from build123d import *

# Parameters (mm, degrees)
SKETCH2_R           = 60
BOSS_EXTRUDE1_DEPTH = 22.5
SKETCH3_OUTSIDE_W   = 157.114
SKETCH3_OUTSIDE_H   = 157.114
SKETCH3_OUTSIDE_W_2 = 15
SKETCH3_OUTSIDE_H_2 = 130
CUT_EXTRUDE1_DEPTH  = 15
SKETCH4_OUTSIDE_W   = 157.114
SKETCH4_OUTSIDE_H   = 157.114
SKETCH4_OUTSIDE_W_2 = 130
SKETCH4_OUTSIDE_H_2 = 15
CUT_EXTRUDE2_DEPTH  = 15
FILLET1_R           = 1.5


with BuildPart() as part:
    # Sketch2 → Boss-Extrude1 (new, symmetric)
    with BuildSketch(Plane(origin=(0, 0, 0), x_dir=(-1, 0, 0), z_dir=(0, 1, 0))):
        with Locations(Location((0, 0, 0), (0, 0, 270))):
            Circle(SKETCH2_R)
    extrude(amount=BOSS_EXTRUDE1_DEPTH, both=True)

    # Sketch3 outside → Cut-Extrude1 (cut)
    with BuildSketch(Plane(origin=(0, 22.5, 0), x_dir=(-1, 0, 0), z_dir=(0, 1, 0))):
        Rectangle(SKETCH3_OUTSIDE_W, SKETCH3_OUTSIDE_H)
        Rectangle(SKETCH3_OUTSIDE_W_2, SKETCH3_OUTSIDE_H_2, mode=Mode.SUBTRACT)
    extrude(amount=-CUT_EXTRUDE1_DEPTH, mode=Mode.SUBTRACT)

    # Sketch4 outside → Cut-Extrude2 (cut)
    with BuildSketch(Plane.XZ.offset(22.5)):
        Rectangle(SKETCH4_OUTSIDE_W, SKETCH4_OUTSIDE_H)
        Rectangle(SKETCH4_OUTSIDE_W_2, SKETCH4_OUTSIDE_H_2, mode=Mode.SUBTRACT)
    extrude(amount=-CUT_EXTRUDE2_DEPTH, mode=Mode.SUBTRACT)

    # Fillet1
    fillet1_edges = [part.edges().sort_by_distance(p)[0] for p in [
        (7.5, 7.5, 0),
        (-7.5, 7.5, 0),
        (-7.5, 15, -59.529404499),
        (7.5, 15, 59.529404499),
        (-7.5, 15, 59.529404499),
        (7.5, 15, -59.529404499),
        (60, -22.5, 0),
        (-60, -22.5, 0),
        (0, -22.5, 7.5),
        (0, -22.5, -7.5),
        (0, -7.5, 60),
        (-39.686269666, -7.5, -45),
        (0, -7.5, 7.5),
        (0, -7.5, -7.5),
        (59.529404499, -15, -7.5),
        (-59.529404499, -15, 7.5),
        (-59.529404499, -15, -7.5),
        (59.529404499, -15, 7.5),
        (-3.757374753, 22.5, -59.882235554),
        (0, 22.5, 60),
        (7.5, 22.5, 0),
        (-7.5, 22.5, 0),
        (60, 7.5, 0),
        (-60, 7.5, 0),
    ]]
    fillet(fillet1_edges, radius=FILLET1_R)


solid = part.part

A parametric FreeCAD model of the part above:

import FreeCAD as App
import Part
import Sketcher
from FreeCAD import Vector

doc = App.newDocument("Part")
body = doc.addObject("PartDesign::Body", "Body")

sketch1 = body.newObject("Sketcher::SketchObject", "Sketch")
sketch1.AttachmentSupport = (doc.getObject("XZ_Plane"), [""])
sketch1.MapMode = "FlatFace"
sketch1.addGeometry(Part.Circle(Vector(0, 0, 0), Vector(0, 0, 1), 60), False)
sketch1.addConstraint([
    Sketcher.Constraint("Coincident", 0, 3, -1, 1),
    Sketcher.Constraint("Diameter", 0, 120.0),
])
pad1 = body.newObject("PartDesign::Pad", "Pad")
pad1.Profile = sketch1
pad1.Length = 45
pad1.Midplane = True

sketch2 = body.newObject("Sketcher::SketchObject", "Sketch001")
sketch2.AttachmentSupport = (doc.getObject("XZ_Plane"), [""])
sketch2.MapMode = "FlatFace"
sketch2.AttachmentOffset = App.Placement(Vector(0, 0, -22.5), App.Rotation())
sketch2.addGeometry([
    Part.LineSegment(Vector(79, 79, 0), Vector(79, -79, 0)),
    Part.LineSegment(Vector(79, -79, 0), Vector(-79, -79, 0)),
    Part.LineSegment(Vector(-79, -79, 0), Vector(-79, 79, 0)),
    Part.LineSegment(Vector(-79, 79, 0), Vector(79, 79, 0)),
    Part.LineSegment(Vector(-8, -65, 0), Vector(8, -65, 0)),
    Part.LineSegment(Vector(8, -65, 0), Vector(8, 65, 0)),
    Part.LineSegment(Vector(8, 65, 0), Vector(-8, 65, 0)),
    Part.LineSegment(Vector(-8, 65, 0), Vector(-8, -65, 0)),
], False)
sketch2.addConstraint([
    Sketcher.Constraint("Coincident", 0, 2, 1, 1),
    Sketcher.Constraint("Coincident", 1, 2, 2, 1),
    Sketcher.Constraint("Coincident", 2, 2, 3, 1),
    Sketcher.Constraint("Coincident", 3, 2, 0, 1),
    Sketcher.Constraint("Coincident", 4, 2, 5, 1),
    Sketcher.Constraint("Coincident", 5, 2, 6, 1),
    Sketcher.Constraint("Coincident", 6, 2, 7, 1),
    Sketcher.Constraint("Coincident", 7, 2, 4, 1),
    Sketcher.Constraint("Vertical", 0),
    Sketcher.Constraint("Horizontal", 1),
    Sketcher.Constraint("Vertical", 2),
    Sketcher.Constraint("Horizontal", 3),
    Sketcher.Constraint("Horizontal", 4),
    Sketcher.Constraint("Vertical", 5),
    Sketcher.Constraint("Horizontal", 6),
    Sketcher.Constraint("Vertical", 7),
    Sketcher.Constraint("Symmetric", 0, 2, 2, 2, -1, 1),
    Sketcher.Constraint("Symmetric", 4, 2, 6, 2, -1, 1),
    Sketcher.Constraint("Equal", 3, 0),
    Sketcher.Constraint("DistanceX", 4, 1, 4, 2, 15.0),
    Sketcher.Constraint("DistanceY", 5, 1, 5, 2, 130.0),
    Sketcher.Constraint("DistanceX", 1, 2, 1, 1, 157.114),
])
pocket1 = body.newObject("PartDesign::Pocket", "Pocket")
pocket1.Profile = sketch2
pocket1.Length = 15
pocket1.Reversed = True

sketch3 = body.newObject("Sketcher::SketchObject", "Sketch002")
sketch3.AttachmentSupport = (doc.getObject("XZ_Plane"), [""])
sketch3.MapMode = "FlatFace"
sketch3.AttachmentOffset = App.Placement(Vector(0, 0, 22.5), App.Rotation())
sketch3.addGeometry([
    Part.LineSegment(Vector(-79, 79, 0), Vector(-79, -79, 0)),
    Part.LineSegment(Vector(-79, -79, 0), Vector(79, -79, 0)),
    Part.LineSegment(Vector(79, -79, 0), Vector(79, 79, 0)),
    Part.LineSegment(Vector(79, 79, 0), Vector(-79, 79, 0)),
    Part.LineSegment(Vector(65, -8, 0), Vector(-65, -8, 0)),
    Part.LineSegment(Vector(-65, -8, 0), Vector(-65, 8, 0)),
    Part.LineSegment(Vector(-65, 8, 0), Vector(65, 8, 0)),
    Part.LineSegment(Vector(65, 8, 0), Vector(65, -8, 0)),
], False)
sketch3.addConstraint([
    Sketcher.Constraint("Coincident", 0, 2, 1, 1),
    Sketcher.Constraint("Coincident", 1, 2, 2, 1),
    Sketcher.Constraint("Coincident", 2, 2, 3, 1),
    Sketcher.Constraint("Coincident", 3, 2, 0, 1),
    Sketcher.Constraint("Coincident", 4, 2, 5, 1),
    Sketcher.Constraint("Coincident", 5, 2, 6, 1),
    Sketcher.Constraint("Coincident", 6, 2, 7, 1),
    Sketcher.Constraint("Coincident", 7, 2, 4, 1),
    Sketcher.Constraint("Vertical", 0),
    Sketcher.Constraint("Horizontal", 1),
    Sketcher.Constraint("Vertical", 2),
    Sketcher.Constraint("Horizontal", 3),
    Sketcher.Constraint("Horizontal", 4),
    Sketcher.Constraint("Vertical", 5),
    Sketcher.Constraint("Horizontal", 6),
    Sketcher.Constraint("Vertical", 7),
    Sketcher.Constraint("Symmetric", 0, 2, 2, 2, -1, 1),
    Sketcher.Constraint("Symmetric", 4, 2, 6, 2, -1, 1),
    Sketcher.Constraint("Equal", 3, 0),
    Sketcher.Constraint("DistanceX", 4, 2, 4, 1, 130.0),
    Sketcher.Constraint("DistanceY", 5, 1, 5, 2, 15.0),
    Sketcher.Constraint("DistanceX", 1, 1, 1, 2, 157.114),
])
pocket2 = body.newObject("PartDesign::Pocket", "Pocket001")
pocket2.Profile = sketch3
pocket2.Length = 15
doc.recompute()

fillet = body.newObject("PartDesign::Fillet", "Fillet")
fillet.Base = (pocket2, ["Edge1"])
fillet.UseAllEdges = True
fillet.Radius = 1.5

doc.recompute()
